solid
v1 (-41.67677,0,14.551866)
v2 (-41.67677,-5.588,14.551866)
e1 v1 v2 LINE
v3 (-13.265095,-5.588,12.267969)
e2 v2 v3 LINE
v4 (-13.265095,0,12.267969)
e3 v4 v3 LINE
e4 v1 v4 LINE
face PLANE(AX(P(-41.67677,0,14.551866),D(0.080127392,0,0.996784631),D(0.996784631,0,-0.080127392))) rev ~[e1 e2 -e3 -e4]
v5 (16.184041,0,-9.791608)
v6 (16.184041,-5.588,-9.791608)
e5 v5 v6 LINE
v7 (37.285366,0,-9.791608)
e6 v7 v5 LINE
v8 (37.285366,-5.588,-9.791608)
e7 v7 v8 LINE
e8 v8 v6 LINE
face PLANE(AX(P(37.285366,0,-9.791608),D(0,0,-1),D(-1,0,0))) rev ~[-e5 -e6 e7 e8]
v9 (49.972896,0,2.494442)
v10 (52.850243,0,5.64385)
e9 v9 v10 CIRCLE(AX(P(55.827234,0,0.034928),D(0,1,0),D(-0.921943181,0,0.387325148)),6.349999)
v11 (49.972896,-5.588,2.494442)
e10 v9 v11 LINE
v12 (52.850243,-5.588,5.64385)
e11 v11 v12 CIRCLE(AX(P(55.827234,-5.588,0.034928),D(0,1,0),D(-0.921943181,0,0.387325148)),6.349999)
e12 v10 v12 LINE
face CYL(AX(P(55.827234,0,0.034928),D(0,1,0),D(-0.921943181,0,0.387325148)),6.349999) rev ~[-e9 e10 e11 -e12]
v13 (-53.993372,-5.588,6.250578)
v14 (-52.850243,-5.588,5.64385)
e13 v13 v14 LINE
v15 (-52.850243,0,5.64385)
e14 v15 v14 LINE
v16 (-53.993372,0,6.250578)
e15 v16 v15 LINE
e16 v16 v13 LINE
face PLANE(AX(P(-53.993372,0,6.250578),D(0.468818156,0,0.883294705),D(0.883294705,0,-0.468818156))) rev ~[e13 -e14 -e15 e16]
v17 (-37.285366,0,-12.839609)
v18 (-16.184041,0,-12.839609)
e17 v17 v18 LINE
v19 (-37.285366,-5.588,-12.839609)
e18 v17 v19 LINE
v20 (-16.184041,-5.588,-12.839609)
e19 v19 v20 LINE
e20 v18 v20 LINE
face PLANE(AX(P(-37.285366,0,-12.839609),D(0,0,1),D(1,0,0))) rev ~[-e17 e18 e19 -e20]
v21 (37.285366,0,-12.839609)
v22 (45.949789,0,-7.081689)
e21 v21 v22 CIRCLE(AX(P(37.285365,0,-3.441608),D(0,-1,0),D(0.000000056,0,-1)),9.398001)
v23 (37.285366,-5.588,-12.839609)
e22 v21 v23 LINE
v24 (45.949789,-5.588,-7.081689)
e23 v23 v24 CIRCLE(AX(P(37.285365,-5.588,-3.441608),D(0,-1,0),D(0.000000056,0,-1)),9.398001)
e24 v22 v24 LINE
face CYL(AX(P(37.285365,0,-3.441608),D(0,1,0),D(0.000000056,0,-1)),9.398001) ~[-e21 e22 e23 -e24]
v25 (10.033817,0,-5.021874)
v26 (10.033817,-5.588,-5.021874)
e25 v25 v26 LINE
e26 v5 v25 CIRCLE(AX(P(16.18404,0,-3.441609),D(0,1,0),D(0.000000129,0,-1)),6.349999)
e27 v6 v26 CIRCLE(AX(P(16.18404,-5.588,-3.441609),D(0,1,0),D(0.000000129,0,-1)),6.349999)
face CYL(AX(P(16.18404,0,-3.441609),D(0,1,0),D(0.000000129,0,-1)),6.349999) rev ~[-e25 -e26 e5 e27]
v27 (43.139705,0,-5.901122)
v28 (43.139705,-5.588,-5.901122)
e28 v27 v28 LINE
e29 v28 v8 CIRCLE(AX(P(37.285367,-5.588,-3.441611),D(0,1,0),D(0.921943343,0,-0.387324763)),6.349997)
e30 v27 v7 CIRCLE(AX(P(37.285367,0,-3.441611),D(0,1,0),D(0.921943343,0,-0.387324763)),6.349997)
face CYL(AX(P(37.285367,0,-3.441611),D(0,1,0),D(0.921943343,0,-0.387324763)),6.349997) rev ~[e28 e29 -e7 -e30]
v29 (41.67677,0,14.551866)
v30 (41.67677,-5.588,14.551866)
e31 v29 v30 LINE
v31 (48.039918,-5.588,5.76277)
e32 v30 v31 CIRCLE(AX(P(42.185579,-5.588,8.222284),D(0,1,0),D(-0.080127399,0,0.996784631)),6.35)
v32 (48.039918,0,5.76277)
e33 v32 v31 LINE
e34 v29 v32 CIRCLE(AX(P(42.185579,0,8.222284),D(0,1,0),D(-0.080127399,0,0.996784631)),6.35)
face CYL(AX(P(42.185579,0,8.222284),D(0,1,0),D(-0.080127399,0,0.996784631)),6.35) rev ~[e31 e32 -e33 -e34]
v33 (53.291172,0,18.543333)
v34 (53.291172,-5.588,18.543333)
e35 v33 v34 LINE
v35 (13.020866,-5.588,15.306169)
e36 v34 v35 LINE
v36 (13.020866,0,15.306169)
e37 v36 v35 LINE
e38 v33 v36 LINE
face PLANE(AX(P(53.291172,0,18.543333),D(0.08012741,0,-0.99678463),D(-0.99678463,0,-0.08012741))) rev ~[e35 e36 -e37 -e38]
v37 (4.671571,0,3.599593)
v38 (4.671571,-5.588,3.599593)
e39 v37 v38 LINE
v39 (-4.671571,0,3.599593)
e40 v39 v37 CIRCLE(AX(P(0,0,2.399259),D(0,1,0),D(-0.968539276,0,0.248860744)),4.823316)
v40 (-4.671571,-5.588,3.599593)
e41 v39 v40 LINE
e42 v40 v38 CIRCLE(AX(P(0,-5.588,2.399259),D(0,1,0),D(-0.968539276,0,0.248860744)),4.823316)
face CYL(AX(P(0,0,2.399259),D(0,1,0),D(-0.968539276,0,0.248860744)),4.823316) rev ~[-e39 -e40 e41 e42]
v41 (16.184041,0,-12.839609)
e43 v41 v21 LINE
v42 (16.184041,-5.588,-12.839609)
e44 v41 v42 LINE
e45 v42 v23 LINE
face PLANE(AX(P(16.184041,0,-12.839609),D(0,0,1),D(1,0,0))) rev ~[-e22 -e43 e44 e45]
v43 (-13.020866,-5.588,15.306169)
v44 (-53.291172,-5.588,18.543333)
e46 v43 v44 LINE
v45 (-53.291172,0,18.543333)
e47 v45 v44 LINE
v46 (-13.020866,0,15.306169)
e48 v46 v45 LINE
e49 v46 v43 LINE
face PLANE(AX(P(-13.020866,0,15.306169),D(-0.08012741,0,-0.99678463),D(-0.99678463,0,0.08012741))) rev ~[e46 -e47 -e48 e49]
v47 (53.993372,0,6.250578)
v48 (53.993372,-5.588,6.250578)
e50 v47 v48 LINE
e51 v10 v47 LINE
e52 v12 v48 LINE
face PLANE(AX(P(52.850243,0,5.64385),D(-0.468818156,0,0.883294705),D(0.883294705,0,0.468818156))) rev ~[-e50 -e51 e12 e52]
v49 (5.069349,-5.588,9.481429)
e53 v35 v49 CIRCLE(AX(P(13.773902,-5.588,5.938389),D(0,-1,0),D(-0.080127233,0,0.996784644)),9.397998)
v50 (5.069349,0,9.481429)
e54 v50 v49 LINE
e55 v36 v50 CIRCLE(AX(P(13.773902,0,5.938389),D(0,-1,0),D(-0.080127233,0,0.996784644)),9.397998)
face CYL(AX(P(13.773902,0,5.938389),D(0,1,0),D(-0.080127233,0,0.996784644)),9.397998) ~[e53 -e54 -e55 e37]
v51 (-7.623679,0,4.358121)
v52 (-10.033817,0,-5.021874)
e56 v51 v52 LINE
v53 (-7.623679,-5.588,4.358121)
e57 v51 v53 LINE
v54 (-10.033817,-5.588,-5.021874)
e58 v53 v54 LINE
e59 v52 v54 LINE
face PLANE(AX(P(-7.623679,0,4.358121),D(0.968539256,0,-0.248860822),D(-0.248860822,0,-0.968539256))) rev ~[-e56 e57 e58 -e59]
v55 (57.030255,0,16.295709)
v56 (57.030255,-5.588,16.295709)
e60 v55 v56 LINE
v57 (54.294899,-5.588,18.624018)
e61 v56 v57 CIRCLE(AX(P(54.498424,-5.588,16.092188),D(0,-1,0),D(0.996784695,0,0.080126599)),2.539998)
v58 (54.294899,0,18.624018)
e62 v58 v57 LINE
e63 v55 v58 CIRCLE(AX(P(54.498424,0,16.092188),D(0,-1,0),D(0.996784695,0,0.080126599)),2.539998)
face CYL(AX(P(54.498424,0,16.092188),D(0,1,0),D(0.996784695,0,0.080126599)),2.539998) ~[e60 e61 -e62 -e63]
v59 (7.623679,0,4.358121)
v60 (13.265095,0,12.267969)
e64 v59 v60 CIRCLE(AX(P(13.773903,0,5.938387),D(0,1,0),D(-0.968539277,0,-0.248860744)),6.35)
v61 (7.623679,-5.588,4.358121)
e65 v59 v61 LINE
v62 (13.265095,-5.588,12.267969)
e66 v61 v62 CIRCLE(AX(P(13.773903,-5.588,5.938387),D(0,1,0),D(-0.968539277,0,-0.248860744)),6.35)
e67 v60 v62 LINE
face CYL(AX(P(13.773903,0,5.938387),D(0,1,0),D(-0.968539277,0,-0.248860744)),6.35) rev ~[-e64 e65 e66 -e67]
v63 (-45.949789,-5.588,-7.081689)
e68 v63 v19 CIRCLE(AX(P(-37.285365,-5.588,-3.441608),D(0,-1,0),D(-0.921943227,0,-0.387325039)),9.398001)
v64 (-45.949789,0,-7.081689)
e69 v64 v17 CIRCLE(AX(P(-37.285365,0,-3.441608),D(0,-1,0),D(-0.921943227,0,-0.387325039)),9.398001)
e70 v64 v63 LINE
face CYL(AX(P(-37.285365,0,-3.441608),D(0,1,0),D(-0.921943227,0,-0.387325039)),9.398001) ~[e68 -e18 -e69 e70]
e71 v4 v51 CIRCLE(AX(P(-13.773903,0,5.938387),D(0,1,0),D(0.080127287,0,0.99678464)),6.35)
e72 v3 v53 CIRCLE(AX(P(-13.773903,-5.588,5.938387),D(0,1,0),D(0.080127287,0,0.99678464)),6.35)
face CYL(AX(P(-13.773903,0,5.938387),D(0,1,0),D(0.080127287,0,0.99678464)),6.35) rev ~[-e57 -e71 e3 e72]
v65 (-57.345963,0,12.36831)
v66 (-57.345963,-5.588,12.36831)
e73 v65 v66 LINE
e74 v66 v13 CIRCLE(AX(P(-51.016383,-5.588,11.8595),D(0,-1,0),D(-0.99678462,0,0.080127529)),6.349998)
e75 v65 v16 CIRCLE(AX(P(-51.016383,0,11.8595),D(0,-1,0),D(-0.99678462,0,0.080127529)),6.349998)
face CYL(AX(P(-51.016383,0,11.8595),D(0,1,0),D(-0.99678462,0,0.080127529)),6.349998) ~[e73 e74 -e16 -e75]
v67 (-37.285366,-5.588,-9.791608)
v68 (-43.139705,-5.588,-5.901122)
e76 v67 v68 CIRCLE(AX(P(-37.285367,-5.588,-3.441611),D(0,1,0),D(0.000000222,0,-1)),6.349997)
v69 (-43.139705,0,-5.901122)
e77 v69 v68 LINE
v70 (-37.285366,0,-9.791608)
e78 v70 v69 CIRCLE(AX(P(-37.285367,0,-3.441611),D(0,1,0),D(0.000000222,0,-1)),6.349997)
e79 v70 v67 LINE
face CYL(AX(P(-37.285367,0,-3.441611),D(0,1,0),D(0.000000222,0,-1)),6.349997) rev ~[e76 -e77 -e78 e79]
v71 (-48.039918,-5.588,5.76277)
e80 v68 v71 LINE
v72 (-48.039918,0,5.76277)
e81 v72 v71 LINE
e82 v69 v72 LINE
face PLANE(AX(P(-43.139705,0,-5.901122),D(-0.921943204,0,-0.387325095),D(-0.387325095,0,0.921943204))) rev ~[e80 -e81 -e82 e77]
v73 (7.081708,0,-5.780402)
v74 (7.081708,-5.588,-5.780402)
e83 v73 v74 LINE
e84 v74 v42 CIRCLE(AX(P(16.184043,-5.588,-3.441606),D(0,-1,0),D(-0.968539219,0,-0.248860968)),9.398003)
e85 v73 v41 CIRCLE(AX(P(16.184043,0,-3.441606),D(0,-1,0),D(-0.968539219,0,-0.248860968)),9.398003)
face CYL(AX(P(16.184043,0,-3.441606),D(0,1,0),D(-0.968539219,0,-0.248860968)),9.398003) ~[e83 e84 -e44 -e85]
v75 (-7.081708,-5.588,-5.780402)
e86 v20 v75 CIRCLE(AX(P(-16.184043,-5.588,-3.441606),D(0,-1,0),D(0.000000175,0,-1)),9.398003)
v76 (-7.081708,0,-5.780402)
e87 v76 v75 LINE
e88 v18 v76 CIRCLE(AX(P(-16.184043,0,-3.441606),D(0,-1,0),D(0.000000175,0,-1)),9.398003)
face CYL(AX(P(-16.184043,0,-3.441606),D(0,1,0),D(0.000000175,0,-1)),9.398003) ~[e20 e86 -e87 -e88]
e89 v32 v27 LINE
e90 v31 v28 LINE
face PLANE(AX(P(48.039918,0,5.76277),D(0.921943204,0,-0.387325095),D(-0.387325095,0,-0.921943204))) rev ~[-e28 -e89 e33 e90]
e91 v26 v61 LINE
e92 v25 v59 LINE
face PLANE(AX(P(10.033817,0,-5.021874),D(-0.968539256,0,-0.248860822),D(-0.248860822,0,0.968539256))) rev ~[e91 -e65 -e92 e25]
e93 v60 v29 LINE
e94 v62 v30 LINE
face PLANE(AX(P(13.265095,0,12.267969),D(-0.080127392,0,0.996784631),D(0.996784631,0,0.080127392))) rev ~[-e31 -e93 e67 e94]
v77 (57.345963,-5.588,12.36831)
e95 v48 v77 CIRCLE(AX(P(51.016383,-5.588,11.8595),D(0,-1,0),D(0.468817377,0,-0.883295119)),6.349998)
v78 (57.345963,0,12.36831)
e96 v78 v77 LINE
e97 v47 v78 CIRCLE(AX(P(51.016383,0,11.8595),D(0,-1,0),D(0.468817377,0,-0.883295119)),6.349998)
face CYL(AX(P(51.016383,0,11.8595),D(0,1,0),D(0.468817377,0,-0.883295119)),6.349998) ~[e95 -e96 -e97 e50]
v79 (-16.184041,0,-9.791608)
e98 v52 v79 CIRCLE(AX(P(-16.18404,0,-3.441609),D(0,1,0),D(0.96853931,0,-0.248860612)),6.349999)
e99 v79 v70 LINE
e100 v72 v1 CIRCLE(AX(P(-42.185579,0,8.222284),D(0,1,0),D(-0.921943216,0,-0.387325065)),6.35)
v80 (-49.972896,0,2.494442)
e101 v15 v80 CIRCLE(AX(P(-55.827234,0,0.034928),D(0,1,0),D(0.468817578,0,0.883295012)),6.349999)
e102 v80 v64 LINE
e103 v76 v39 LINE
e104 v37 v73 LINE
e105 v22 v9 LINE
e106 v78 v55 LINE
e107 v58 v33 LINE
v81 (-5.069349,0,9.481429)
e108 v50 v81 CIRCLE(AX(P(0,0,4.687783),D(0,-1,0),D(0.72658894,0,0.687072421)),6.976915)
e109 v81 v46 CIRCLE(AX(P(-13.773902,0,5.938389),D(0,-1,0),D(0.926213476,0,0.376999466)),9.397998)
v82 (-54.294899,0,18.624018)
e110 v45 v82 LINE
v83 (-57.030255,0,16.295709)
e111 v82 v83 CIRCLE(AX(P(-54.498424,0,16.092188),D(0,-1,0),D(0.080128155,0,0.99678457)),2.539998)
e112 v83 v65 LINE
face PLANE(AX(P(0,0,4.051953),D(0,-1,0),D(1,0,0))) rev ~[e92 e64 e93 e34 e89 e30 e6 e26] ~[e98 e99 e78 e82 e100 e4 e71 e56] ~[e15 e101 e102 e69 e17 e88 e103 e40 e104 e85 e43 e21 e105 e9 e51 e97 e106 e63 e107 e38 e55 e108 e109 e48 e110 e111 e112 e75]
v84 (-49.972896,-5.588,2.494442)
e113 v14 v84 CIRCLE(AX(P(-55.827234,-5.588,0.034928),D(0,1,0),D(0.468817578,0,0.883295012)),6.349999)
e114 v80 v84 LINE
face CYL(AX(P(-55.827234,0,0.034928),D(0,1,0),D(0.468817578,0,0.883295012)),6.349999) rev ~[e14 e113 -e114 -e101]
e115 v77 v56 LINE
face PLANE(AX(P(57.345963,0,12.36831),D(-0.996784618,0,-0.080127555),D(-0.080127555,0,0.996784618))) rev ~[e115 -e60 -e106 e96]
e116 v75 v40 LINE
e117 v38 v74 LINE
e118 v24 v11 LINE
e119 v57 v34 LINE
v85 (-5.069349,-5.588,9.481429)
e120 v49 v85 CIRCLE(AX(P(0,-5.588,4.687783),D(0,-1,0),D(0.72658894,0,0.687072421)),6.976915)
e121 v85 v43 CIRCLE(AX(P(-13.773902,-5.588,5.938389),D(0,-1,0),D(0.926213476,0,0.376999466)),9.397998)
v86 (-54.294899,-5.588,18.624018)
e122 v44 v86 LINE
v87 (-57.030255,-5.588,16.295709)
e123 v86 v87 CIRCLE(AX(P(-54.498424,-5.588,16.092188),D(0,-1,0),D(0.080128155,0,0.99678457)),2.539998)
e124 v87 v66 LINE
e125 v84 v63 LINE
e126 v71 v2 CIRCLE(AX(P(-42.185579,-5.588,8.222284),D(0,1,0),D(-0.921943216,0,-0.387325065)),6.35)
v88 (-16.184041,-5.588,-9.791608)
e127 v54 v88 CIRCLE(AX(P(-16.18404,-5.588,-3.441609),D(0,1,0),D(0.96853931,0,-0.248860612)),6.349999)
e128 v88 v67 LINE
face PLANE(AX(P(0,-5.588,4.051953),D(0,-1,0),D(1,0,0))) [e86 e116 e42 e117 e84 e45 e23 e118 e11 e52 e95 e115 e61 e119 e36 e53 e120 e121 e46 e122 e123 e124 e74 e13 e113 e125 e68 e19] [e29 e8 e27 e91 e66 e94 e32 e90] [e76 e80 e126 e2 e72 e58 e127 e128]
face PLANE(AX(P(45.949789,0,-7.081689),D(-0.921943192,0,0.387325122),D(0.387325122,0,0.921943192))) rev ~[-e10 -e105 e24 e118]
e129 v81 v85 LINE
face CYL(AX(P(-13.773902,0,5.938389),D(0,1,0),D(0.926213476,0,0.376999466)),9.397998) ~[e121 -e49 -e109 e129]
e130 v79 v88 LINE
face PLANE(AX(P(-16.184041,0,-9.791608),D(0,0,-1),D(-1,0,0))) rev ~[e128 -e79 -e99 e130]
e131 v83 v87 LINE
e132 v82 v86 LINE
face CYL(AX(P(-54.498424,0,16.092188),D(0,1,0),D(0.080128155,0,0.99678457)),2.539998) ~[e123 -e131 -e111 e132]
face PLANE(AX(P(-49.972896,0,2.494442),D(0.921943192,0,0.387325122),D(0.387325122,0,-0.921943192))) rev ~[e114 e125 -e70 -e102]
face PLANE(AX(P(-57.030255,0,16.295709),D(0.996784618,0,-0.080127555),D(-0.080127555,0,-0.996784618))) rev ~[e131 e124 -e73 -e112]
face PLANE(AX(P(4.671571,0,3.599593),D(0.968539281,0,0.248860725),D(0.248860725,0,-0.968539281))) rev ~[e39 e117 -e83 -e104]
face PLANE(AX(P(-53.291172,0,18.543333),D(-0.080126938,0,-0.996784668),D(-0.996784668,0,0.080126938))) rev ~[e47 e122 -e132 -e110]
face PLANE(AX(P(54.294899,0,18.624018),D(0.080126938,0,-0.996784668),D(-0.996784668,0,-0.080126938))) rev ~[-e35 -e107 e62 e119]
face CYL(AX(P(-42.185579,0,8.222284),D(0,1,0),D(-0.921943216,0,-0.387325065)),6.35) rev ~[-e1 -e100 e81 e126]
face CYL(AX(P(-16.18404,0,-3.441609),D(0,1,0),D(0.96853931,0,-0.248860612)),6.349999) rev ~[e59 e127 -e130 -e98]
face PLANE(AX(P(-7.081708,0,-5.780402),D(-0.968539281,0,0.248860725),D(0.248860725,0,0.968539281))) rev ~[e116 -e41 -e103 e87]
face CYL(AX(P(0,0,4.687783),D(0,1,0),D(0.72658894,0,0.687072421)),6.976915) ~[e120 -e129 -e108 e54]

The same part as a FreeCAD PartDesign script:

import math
import FreeCAD as App
import Part
import Sketcher
from FreeCAD import Vector
Q = App.Units.Quantity

doc = App.newDocument("Part")
body = doc.addObject("PartDesign::Body", "Body")

sketch1 = body.newObject("Sketcher::SketchObject", "Sketch")
sketch1.AttachmentSupport = (doc.getObject("XZ_Plane"), [""])
sketch1.MapMode = "FlatFace"
sketch1.addGeometry([
    Part.LineSegment(Vector(53.3, 18.5, 0), Vector(13, 15.3, 0)),
    Part.ArcOfCircle(Part.Circle(Vector(13.8, 5.9, 0), Vector(0, 0, 1), 9.4), math.radians(95), math.radians(158)),
    Part.ArcOfCircle(Part.Circle(Vector(0, 4.7, 0), Vector(0, 0, 1), 7), math.radians(43), math.radians(137)),
    Part.ArcOfCircle(Part.Circle(Vector(-13.8, 5.9, 0), Vector(0, 0, 1), 9.4), math.radians(22), math.radians(85)),
    Part.LineSegment(Vector(-13, 15.3, 0), Vector(-53.3, 18.5, 0)),
    Part.LineSegment(Vector(-53.3, 18.5, 0), Vector(-54.3, 18.6, 0)),
    Part.ArcOfCircle(Part.Circle(Vector(-54.5, 16.1, 0), Vector(0, 0, 1), 2.5), math.radians(85), math.radians(175)),
    Part.LineSegment(Vector(-57, 16.3, 0), Vector(-57.3, 12.4, 0)),
    Part.ArcOfCircle(Part.Circle(Vector(-51, 11.9, 0), Vector(0, 0, 1), 6.3), math.radians(175), math.radians(242)),
    Part.LineSegment(Vector(-54, 6.3, 0), Vector(-52.9, 5.6, 0)),
    Part.ArcOfCircle(Part.Circle(Vector(-55.8, 0, 0), Vector(0, 0, 1), 6.3), math.radians(23), math.radians(62)),
    Part.LineSegment(Vector(-50, 2.5, 0), Vector(-45.9, -7.1, 0)),
    Part.ArcOfCircle(Part.Circle(Vector(-37.3, -3.4, 0), Vector(0, 0, 1), 9.4), math.radians(-157), math.radians(-90)),
    Part.LineSegment(Vector(-37.3, -12.8, 0), Vector(-16.2, -12.8, 0)),
    Part.ArcOfCircle(Part.Circle(Vector(-16.2, -3.4, 0), Vector(0, 0, 1), 9.4), math.radians(-90), math.radians(-14)),
    Part.LineSegment(Vector(-7.1, -5.8, 0), Vector(-4.7, 3.6, 0)),
    Part.ArcOfCircle(Part.Circle(Vector(0, 2.4, 0), Vector(0, 0, 1), 4.8), math.radians(14), math.radians(166)),
    Part.LineSegment(Vector(4.7, 3.6, 0), Vector(7.1, -5.8, 0)),
    Part.ArcOfCircle(Part.Circle(Vector(16.2, -3.4, 0), Vector(0, 0, 1), 9.4), math.radians(-166), math.radians(-90)),
    Part.LineSegment(Vector(16.2, -12.8, 0), Vector(37.3, -12.8, 0)),
    Part.ArcOfCircle(Part.Circle(Vector(37.3, -3.4, 0), Vector(0, 0, 1), 9.4), math.radians(-90), math.radians(-23)),
    Part.LineSegment(Vector(45.9, -7.1, 0), Vector(50, 2.5, 0)),
    Part.ArcOfCircle(Part.Circle(Vector(55.8, 0, 0), Vector(0, 0, 1), 6.3), math.radians(118), math.radians(157)),
    Part.LineSegment(Vector(52.9, 5.6, 0), Vector(54, 6.3, 0)),
    Part.ArcOfCircle(Part.Circle(Vector(51, 11.9, 0), Vector(0, 0, 1), 6.3), math.radians(-62), math.radians(5)),
    Part.LineSegment(Vector(57.3, 12.4, 0), Vector(57, 16.3, 0)),
    Part.ArcOfCircle(Part.Circle(Vector(54.5, 16.1, 0), Vector(0, 0, 1), 2.5), math.radians(5), math.radians(95)),
    Part.LineSegment(Vector(54.3, 18.6, 0), Vector(53.3, 18.5, 0)),
    Part.ArcOfCircle(Part.Circle(Vector(-16.2, -3.4, 0), Vector(0, 0, 1), 6.3), math.radians(-90), math.radians(-14)),
    Part.LineSegment(Vector(-16.2, -9.8, 0), Vector(-37.3, -9.8, 0)),
    Part.ArcOfCircle(Part.Circle(Vector(-37.3, -3.4, 0), Vector(0, 0, 1), 6.3), math.radians(-157), math.radians(-90)),
    Part.LineSegment(Vector(-43.1, -5.9, 0), Vector(-48, 5.8, 0)),
    Part.ArcOfCircle(Part.Circle(Vector(-42.2, 8.2, 0), Vector(0, 0, 1), 6.3), math.radians(85), math.radians(203)),
    Part.LineSegment(Vector(-41.7, 14.6, 0), Vector(-13.3, 12.3, 0)),
    Part.ArcOfCircle(Part.Circle(Vector(-13.8, 5.9, 0), Vector(0, 0, 1), 6.3), math.radians(-14), math.radians(85)),
    Part.LineSegment(Vector(-7.6, 4.4, 0), Vector(-10, -5, 0)),
    Part.LineSegment(Vector(10, -5, 0), Vector(7.6, 4.4, 0)),
    Part.ArcOfCircle(Part.Circle(Vector(13.8, 5.9, 0), Vector(0, 0, 1), 6.3), math.radians(95), math.radians(194)),
    Part.LineSegment(Vector(13.3, 12.3, 0), Vector(41.7, 14.6, 0)),
    Part.ArcOfCircle(Part.Circle(Vector(42.2, 8.2, 0), Vector(0, 0, 1), 6.3), math.radians(-23), math.radians(95)),
    Part.LineSegment(Vector(48, 5.8, 0), Vector(43.1, -5.9, 0)),
    Part.ArcOfCircle(Part.Circle(Vector(37.3, -3.4, 0), Vector(0, 0, 1), 6.3), math.radians(-90), math.radians(-23)),
    Part.LineSegment(Vector(37.3, -9.8, 0), Vector(16.2, -9.8, 0)),
    Part.ArcOfCircle(Part.Circle(Vector(16.2, -3.4, 0), Vector(0, 0, 1), 6.3), math.radians(-166), math.radians(-90)),
], False)
sketch1.addConstraint([
    Sketcher.Constraint("Tangent", 0, 2, 1, 1),
    Sketcher.Constraint("Coincident", 1, 2, 2, 1),
    Sketcher.Constraint("Coincident", 2, 2, 3, 1),
    Sketcher.Constraint("Tangent", 3, 2, 4, 1),
    Sketcher.Constraint("Coincident", 4, 2, 5, 1),
    Sketcher.Constraint("Tangent", 5, 2, 6, 1),
    Sketcher.Constraint("Tangent", 6, 2, 7, 1),
    Sketcher.Constraint("Tangent", 7, 2, 8, 1),
    Sketcher.Constraint("Tangent", 8, 2, 9, 1),
    Sketcher.Constraint("Tangent", 9, 2, 10, 2),
    Sketcher.Constraint("Tangent", 10, 1, 11, 1),
    Sketcher.Constraint("Tangent", 11, 2, 12, 1),
    Sketcher.Constraint("Tangent", 12, 2, 13, 1),
    Sketcher.Constraint("Tangent", 13, 2, 14, 1),
    Sketcher.Constraint("Tangent", 14, 2, 15, 1),
    Sketcher.Constraint("Tangent", 15, 2, 16, 2),
    Sketcher.Constraint("Tangent", 16, 1, 17, 1),
    Sketcher.Constraint("Tangent", 17, 2, 18, 1),
    Sketcher.Constraint("Tangent", 18, 2, 19, 1),
    Sketcher.Constraint("Tangent", 19, 2, 20, 1),
    Sketcher.Constraint("Tangent", 20, 2, 21, 1),
    Sketcher.Constraint("Tangent", 21, 2, 22, 2),
    Sketcher.Constraint("Tangent", 22, 1, 23, 1),
    Sketcher.Constraint("Tangent", 23, 2, 24, 1),
    Sketcher.Constraint("Tangent", 24, 2, 25, 1),
    Sketcher.Constraint("Tangent", 25, 2, 26, 1),
    Sketcher.Constraint("Tangent", 26, 2, 27, 1),
    Sketcher.Constraint("Coincident", 27, 2, 0, 1),
    Sketcher.Constraint("Tangent", 28, 1, 29, 1),
    Sketcher.Constraint("Tangent", 29, 2, 30, 2),
    Sketcher.Constraint("Tangent", 30, 1, 31, 1),
    Sketcher.Constraint("Tangent", 31, 2, 32, 2),
    Sketcher.Constraint("Tangent", 32, 1, 33, 1),
    Sketcher.Constraint("Tangent", 33, 2, 34, 2),
    Sketcher.Constraint("Tangent", 34, 1, 35, 1),
    Sketcher.Constraint("Tangent", 35, 2, 28, 2),
    Sketcher.Constraint("Tangent", 36, 2, 37, 2),
    Sketcher.Constraint("Tangent", 37, 1, 38, 1),
    Sketcher.Constraint("Tangent", 38, 2, 39, 2),
    Sketcher.Constraint("Tangent", 39, 1, 40, 1),
    Sketcher.Constraint("Tangent", 40, 2, 41, 2),
    Sketcher.Constraint("Tangent", 41, 1, 42, 1),
    Sketcher.Constraint("Tangent", 42, 2, 43, 2),
    Sketcher.Constraint("Tangent", 43, 1, 36, 1),
    Sketcher.Constraint("Horizontal", 13),
    Sketcher.Constraint("Horizontal", 19),
    Sketcher.Constraint("Horizontal", 29),
    Sketcher.Constraint("Horizontal", 42),
    Sketcher.Constraint("Coincident", 28, 3, 14, 3),
    Sketcher.Constraint("Coincident", 30, 3, 12, 3),
    Sketcher.Constraint("Coincident", 34, 3, 3, 3),
    Sketcher.Constraint("Coincident", 37, 3, 1, 3),
    Sketcher.Constraint("Coincident", 41, 3, 20, 3),
    Sketcher.Constraint("Coincident", 43, 3, 18, 3),
    Sketcher.Constraint("Equal", 1, 3),
    Sketcher.Constraint("Equal", 8, 10),
    Sketcher.Constraint("Equal", 12, 14),
    Sketcher.Constraint("Equal", 14, 18),
    Sketcher.Constraint("Equal", 18, 20),
    Sketcher.Constraint("Equal", 10, 22),
    Sketcher.Constraint("Equal", 22, 24),
    Sketcher.Constraint("Equal", 6, 26),
    Sketcher.Constraint("Equal", 24, 28),
    Sketcher.Constraint("Equal", 28, 32),
    Sketcher.Constraint("Equal", 32, 34),
    Sketcher.Constraint("Equal", 34, 37),
    Sketcher.Constraint("Equal", 37, 39),
    Sketcher.Constraint("Equal", 30, 41),
    Sketcher.Constraint("Symmetric", 1, 3, 3, 3, -2),
    Sketcher.Constraint("Symmetric", 14, 3, 18, 3, -2),
    Sketcher.Constraint("Symmetric", 10, 3, 22, 3, -2),
    Sketcher.Constraint("Symmetric", 8, 3, 24, 3, -2),
    Sketcher.Constraint("Symmetric", 6, 3, 26, 3, -2),
    Sketcher.Constraint("Symmetric", 32, 3, 39, 3, -2),
    Sketcher.Constraint("Symmetric", 4, 2, 27, 2, -2),
    Sketcher.Constraint("PointOnObject", 2, 3, -2),
    Sketcher.Constraint("PointOnObject", 16, 3, -2),
    Sketcher.Constraint("Parallel", 4, 5),
    Sketcher.Constraint("Perpendicular", 5, 7),
    Sketcher.Constraint("Parallel", 11, 31),
    Sketcher.Constraint("Perpendicular", 7, 33),
    Sketcher.Constraint("Parallel", 15, 35),
    Sketcher.Constraint("Parallel", 21, 40),
    Sketcher.Constraint("Equal", 17, 35),
    Sketcher.Constraint("Radius", 6, Q("0.0999999 in")),
    Sketcher.Constraint("Radius", 1, Q("0.3699999 in")),
    Sketcher.Constraint("Radius", 8, Q("0.2499999 in")),
    Sketcher.Constraint("Radius", 12, Q("0.37 in")),
    Sketcher.Constraint("Radius", 2, Q("6.976915 mm")),
    Sketcher.Constraint("Radius", 16, Q("4.823316 mm")),
    Sketcher.Constraint("Distance", 11, Q("10.386899 mm")),
    Sketcher.Constraint("DistanceX", -1, 1, 1, 3, Q("13.773902 mm")),
    Sketcher.Constraint("DistanceY", -1, 1, 8, 3, Q("11.8595 mm")),
    Sketcher.Constraint("DistanceX", 5, 2, -1, 1, Q("54.294899 mm")),
    Sketcher.Constraint("DistanceY", 17, 2, -1, 1, Q("5.780402 mm")),
    Sketcher.Constraint("Distance", 31, Q("12.651421 mm")),
    Sketcher.Constraint("DistanceX", 13, 1, 13, 2, Q("21.101325 mm")),
    Sketcher.Constraint("DistanceY", -1, 1, 1, 3, Q("5.938389 mm")),
    Sketcher.Constraint("DistanceX", 32, 3, -1, 1, Q("42.185579 mm")),
    Sketcher.Constraint("DistanceX", -1, 1, 1, 2, Q("5.069349 mm")),
    Sketcher.Constraint("Distance", 0, Q("40.400208 mm")),
])
pad1 = body.newObject("PartDesign::Pad", "Pad")
pad1.Profile = sketch1
pad1.Length = Q("0.22 in")

doc.recompute()
